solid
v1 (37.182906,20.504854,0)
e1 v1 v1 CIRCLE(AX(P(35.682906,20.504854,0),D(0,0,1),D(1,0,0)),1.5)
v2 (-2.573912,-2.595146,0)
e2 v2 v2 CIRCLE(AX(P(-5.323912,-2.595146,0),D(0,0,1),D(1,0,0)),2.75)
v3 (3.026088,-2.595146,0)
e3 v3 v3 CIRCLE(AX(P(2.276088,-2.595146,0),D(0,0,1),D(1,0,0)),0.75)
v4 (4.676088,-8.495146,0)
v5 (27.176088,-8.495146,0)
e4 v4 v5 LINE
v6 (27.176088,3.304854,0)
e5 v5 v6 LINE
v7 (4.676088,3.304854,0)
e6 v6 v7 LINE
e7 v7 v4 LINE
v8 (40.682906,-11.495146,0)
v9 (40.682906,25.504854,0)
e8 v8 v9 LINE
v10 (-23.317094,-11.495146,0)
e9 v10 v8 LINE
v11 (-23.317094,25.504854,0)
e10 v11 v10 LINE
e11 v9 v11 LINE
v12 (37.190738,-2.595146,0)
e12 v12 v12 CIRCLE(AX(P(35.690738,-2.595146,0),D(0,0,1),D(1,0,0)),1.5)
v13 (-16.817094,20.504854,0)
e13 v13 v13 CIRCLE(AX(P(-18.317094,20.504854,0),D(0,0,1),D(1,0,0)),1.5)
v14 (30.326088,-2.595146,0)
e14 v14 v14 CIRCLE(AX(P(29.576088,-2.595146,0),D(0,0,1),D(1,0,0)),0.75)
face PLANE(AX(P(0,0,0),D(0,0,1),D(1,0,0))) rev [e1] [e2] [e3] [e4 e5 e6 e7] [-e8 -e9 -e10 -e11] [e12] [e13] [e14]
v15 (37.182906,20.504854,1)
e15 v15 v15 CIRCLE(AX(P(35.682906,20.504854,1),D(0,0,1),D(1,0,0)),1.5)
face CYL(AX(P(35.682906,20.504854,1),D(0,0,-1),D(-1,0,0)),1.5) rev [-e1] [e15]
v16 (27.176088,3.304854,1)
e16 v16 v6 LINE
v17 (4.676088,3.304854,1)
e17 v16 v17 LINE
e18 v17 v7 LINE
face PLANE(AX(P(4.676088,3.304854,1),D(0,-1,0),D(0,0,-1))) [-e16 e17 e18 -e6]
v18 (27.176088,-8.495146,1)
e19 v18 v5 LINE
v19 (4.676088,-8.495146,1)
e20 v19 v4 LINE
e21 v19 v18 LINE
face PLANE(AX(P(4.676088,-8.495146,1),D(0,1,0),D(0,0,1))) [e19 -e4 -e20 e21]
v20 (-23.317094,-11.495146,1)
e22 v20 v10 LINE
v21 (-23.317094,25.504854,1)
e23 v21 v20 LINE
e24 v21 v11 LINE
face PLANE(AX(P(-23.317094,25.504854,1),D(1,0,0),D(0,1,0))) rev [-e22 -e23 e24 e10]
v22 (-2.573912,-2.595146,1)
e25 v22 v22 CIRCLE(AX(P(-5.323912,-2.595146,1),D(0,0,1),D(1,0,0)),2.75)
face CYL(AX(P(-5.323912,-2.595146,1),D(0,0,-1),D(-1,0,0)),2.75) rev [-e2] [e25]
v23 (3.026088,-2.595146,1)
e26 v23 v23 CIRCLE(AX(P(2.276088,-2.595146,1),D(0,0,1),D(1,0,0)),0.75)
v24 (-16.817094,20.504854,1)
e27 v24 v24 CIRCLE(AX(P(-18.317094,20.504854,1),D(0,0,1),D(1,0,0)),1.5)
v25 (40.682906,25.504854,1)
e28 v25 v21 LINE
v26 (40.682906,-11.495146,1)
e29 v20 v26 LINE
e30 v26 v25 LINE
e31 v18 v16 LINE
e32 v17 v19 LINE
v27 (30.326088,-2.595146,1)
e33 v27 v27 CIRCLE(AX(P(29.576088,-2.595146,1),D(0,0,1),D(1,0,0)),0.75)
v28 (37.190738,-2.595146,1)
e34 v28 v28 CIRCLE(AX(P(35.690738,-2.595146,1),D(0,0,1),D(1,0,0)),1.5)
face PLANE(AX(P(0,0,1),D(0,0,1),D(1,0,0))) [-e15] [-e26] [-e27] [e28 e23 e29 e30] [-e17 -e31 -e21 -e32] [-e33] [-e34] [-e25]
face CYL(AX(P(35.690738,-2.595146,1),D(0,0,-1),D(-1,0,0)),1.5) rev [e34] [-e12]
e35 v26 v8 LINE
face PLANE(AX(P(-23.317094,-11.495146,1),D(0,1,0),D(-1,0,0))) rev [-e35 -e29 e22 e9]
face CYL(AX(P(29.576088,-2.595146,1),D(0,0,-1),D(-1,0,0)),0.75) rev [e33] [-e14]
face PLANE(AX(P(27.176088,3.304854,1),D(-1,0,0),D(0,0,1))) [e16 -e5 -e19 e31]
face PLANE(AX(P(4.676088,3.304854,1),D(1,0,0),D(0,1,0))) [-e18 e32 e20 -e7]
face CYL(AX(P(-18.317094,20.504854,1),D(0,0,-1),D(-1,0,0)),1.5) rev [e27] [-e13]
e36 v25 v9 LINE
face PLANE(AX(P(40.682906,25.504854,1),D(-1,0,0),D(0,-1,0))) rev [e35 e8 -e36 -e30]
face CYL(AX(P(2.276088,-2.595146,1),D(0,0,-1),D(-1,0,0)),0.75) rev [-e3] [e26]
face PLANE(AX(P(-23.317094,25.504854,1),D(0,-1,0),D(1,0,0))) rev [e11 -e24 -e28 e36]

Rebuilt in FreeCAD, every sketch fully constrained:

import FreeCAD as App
import Part
import Sketcher

V = App.Vector
Q = App.Units.Quantity


def add_polygon(sketch, points):
    """Adds a closed chain of lines whose ends are joined by coincident constraints."""
    first, n = sketch.GeometryCount, len(points)
    for a, b in zip(points, points[1:] + points[:1]):
        sketch.addGeometry(Part.LineSegment(App.Vector(*a, 0), App.Vector(*b, 0)), False)
    for i in range(n):
        sketch.addConstraint(Sketcher.Constraint("Coincident", first + i, 2, first + (i + 1) % n, 1))

doc = App.newDocument("Part")
body = doc.addObject("PartDesign::Body", "Body")

# Sketch on XY plane
sketch1 = doc.addObject("Sketcher::SketchObject", "Sketch")
body.addObject(sketch1)
sketch1.AttachmentSupport = (doc.XY_Plane, [""])
sketch1.MapMode = "FlatFace"
add_polygon(sketch1, [(-23.3, 25.5), (-23.3, -11.5), (40.7, -11.5), (40.7, 25.5)])  # lines 0-3
sketch1.addGeometry(Part.Circle(V(-5.3, -2.6, 0), V(0, 0, 1), 2.8), False)  # 4
sketch1.addGeometry(Part.Circle(V(2.3, -2.6, 0), V(0, 0, 1), 0.8), False)  # 5
add_polygon(sketch1, [(27.2, -8.5), (4.7, -8.5), (4.7, 3.3), (27.2, 3.3)])  # lines 6-9
sketch1.addGeometry(Part.Circle(V(29.6, -2.6, 0), V(0, 0, 1), 0.8), False)  # 10
sketch1.addGeometry(Part.Circle(V(35.7, -2.6, 0), V(0, 0, 1), 1.5), False)  # 11
sketch1.addGeometry(Part.Circle(V(-18.3, 20.5, 0), V(0, 0, 1), 1.5), False)  # 12
sketch1.addGeometry(Part.Circle(V(35.7, 20.5, 0), V(0, 0, 1), 1.5), False)  # 13
sketch1.addConstraint([
    Sketcher.Constraint("Vertical", 0),
    Sketcher.Constraint("Horizontal", 1),
    Sketcher.Constraint("Vertical", 2),
    Sketcher.Constraint("Horizontal", 3),
    Sketcher.Constraint("Horizontal", 6),
    Sketcher.Constraint("Vertical", 7),
    Sketcher.Constraint("Horizontal", 8),
    Sketcher.Constraint("Vertical", 9),
    Sketcher.Constraint("Equal", 5, 10),
    Sketcher.Constraint("Equal", 11, 12),
    Sketcher.Constraint("Equal", 12, 13),
    Sketcher.Constraint("Horizontal", 4, 3, 5, 3),
    Sketcher.Constraint("Horizontal", 5, 3, 10, 3),
    Sketcher.Constraint("Horizontal", 10, 3, 11, 3),
    Sketcher.Constraint("Horizontal", 12, 3, 13, 3),
    Sketcher.Constraint("Diameter", 11, Q("3 mm")),
    Sketcher.Constraint("Diameter", 4, Q("5.5 mm")),
    Sketcher.Constraint("Diameter", 5, Q("1.5 mm")),
    Sketcher.Constraint("DistanceX", 1, 1, 1, 2, Q("64 mm")),
    Sketcher.Constraint("DistanceY", 0, 2, 0, 1, Q("37 mm")),
    Sketcher.Constraint("DistanceX", 6, 2, 6, 1, Q("22.5 mm")),
    Sketcher.Constraint("DistanceY", 7, 1, 7, 2, Q("11.8 mm")),
    Sketcher.Constraint("DistanceX", 12, 3, 13, 3, Q("54 mm")),
    Sketcher.Constraint("DistanceX", 0, 2, 12, 3, Q("5 mm")),
    Sketcher.Constraint("DistanceY", 0, 2, 12, 3, Q("32 mm")),
    Sketcher.Constraint("DistanceX", 4, 3, 6, 2, Q("10 mm")),
    Sketcher.Constraint("DistanceY", 0, 2, 6, 2, Q("3 mm")),
    Sketcher.Constraint("DistanceX", 4, 3, 5, 3, Q("7.6 mm")),
    Sketcher.Constraint("DistanceX", 5, 3, 10, 3, Q("27.3 mm")),
    Sketcher.Constraint("DistanceY", 4, 3, 12, 3, Q("23.1 mm")),
    Sketcher.Constraint("DistanceX", 4, 3, -1, 1, Q("5.323912 mm")),
    Sketcher.Constraint("DistanceX", 10, 3, 11, 3, Q("6.11465 mm")),
    Sketcher.Constraint("DistanceX", 12, 3, 4, 3, Q("12.993182 mm")),
    Sketcher.Constraint("DistanceY", 4, 3, -1, 1, Q("2.595146 mm")),
])
pad1 = doc.addObject("PartDesign::Pad", "Pad")
body.addObject(pad1)
pad1.Profile = sketch1
pad1.Length = 1

doc.recompute()
